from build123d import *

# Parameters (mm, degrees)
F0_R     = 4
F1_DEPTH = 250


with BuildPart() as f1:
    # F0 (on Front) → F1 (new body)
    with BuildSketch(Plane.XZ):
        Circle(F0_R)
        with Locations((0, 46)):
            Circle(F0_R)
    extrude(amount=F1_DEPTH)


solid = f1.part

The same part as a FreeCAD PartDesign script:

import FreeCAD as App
import Part
import Sketcher
Q = App.Units.Quantity

doc = App.newDocument("Part")
body = doc.addObject("PartDesign::Body", "Body")
body.AllowCompound = True

# Sketch on XZ plane
sketch1 = body.newObject("Sketcher::SketchObject", "Sketch")
sketch1.AttachmentSupport = (doc.getObject("XZ_Plane"), [""])
sketch1.MapMode = "FlatFace"
sketch1.addGeometry(Part.Circle(App.Vector(0, 0, 0), App.Vector(0, 0, 1), 4), False)
sketch1.addGeometry(Part.Circle(App.Vector(0, 46, 0), App.Vector(0, 0, 1), 4), False)
sketch1.addConstraint(Sketcher.Constraint("Coincident", 0, 3, -1, 1))
sketch1.addConstraint(Sketcher.Constraint("Equal", 0, 1))
sketch1.addConstraint(Sketcher.Constraint("PointOnObject", 1, 3, -2))
sketch1.addConstraint(Sketcher.Constraint("Diameter", 0, Q("8 mm")))
sketch1.addConstraint(Sketcher.Constraint("DistanceY", -1, 1, 1, 3, Q("46 mm")))
pad1 = body.newObject("PartDesign::Pad", "Pad")
pad1.Profile = sketch1
pad1.Length = 250

doc.recompute()
